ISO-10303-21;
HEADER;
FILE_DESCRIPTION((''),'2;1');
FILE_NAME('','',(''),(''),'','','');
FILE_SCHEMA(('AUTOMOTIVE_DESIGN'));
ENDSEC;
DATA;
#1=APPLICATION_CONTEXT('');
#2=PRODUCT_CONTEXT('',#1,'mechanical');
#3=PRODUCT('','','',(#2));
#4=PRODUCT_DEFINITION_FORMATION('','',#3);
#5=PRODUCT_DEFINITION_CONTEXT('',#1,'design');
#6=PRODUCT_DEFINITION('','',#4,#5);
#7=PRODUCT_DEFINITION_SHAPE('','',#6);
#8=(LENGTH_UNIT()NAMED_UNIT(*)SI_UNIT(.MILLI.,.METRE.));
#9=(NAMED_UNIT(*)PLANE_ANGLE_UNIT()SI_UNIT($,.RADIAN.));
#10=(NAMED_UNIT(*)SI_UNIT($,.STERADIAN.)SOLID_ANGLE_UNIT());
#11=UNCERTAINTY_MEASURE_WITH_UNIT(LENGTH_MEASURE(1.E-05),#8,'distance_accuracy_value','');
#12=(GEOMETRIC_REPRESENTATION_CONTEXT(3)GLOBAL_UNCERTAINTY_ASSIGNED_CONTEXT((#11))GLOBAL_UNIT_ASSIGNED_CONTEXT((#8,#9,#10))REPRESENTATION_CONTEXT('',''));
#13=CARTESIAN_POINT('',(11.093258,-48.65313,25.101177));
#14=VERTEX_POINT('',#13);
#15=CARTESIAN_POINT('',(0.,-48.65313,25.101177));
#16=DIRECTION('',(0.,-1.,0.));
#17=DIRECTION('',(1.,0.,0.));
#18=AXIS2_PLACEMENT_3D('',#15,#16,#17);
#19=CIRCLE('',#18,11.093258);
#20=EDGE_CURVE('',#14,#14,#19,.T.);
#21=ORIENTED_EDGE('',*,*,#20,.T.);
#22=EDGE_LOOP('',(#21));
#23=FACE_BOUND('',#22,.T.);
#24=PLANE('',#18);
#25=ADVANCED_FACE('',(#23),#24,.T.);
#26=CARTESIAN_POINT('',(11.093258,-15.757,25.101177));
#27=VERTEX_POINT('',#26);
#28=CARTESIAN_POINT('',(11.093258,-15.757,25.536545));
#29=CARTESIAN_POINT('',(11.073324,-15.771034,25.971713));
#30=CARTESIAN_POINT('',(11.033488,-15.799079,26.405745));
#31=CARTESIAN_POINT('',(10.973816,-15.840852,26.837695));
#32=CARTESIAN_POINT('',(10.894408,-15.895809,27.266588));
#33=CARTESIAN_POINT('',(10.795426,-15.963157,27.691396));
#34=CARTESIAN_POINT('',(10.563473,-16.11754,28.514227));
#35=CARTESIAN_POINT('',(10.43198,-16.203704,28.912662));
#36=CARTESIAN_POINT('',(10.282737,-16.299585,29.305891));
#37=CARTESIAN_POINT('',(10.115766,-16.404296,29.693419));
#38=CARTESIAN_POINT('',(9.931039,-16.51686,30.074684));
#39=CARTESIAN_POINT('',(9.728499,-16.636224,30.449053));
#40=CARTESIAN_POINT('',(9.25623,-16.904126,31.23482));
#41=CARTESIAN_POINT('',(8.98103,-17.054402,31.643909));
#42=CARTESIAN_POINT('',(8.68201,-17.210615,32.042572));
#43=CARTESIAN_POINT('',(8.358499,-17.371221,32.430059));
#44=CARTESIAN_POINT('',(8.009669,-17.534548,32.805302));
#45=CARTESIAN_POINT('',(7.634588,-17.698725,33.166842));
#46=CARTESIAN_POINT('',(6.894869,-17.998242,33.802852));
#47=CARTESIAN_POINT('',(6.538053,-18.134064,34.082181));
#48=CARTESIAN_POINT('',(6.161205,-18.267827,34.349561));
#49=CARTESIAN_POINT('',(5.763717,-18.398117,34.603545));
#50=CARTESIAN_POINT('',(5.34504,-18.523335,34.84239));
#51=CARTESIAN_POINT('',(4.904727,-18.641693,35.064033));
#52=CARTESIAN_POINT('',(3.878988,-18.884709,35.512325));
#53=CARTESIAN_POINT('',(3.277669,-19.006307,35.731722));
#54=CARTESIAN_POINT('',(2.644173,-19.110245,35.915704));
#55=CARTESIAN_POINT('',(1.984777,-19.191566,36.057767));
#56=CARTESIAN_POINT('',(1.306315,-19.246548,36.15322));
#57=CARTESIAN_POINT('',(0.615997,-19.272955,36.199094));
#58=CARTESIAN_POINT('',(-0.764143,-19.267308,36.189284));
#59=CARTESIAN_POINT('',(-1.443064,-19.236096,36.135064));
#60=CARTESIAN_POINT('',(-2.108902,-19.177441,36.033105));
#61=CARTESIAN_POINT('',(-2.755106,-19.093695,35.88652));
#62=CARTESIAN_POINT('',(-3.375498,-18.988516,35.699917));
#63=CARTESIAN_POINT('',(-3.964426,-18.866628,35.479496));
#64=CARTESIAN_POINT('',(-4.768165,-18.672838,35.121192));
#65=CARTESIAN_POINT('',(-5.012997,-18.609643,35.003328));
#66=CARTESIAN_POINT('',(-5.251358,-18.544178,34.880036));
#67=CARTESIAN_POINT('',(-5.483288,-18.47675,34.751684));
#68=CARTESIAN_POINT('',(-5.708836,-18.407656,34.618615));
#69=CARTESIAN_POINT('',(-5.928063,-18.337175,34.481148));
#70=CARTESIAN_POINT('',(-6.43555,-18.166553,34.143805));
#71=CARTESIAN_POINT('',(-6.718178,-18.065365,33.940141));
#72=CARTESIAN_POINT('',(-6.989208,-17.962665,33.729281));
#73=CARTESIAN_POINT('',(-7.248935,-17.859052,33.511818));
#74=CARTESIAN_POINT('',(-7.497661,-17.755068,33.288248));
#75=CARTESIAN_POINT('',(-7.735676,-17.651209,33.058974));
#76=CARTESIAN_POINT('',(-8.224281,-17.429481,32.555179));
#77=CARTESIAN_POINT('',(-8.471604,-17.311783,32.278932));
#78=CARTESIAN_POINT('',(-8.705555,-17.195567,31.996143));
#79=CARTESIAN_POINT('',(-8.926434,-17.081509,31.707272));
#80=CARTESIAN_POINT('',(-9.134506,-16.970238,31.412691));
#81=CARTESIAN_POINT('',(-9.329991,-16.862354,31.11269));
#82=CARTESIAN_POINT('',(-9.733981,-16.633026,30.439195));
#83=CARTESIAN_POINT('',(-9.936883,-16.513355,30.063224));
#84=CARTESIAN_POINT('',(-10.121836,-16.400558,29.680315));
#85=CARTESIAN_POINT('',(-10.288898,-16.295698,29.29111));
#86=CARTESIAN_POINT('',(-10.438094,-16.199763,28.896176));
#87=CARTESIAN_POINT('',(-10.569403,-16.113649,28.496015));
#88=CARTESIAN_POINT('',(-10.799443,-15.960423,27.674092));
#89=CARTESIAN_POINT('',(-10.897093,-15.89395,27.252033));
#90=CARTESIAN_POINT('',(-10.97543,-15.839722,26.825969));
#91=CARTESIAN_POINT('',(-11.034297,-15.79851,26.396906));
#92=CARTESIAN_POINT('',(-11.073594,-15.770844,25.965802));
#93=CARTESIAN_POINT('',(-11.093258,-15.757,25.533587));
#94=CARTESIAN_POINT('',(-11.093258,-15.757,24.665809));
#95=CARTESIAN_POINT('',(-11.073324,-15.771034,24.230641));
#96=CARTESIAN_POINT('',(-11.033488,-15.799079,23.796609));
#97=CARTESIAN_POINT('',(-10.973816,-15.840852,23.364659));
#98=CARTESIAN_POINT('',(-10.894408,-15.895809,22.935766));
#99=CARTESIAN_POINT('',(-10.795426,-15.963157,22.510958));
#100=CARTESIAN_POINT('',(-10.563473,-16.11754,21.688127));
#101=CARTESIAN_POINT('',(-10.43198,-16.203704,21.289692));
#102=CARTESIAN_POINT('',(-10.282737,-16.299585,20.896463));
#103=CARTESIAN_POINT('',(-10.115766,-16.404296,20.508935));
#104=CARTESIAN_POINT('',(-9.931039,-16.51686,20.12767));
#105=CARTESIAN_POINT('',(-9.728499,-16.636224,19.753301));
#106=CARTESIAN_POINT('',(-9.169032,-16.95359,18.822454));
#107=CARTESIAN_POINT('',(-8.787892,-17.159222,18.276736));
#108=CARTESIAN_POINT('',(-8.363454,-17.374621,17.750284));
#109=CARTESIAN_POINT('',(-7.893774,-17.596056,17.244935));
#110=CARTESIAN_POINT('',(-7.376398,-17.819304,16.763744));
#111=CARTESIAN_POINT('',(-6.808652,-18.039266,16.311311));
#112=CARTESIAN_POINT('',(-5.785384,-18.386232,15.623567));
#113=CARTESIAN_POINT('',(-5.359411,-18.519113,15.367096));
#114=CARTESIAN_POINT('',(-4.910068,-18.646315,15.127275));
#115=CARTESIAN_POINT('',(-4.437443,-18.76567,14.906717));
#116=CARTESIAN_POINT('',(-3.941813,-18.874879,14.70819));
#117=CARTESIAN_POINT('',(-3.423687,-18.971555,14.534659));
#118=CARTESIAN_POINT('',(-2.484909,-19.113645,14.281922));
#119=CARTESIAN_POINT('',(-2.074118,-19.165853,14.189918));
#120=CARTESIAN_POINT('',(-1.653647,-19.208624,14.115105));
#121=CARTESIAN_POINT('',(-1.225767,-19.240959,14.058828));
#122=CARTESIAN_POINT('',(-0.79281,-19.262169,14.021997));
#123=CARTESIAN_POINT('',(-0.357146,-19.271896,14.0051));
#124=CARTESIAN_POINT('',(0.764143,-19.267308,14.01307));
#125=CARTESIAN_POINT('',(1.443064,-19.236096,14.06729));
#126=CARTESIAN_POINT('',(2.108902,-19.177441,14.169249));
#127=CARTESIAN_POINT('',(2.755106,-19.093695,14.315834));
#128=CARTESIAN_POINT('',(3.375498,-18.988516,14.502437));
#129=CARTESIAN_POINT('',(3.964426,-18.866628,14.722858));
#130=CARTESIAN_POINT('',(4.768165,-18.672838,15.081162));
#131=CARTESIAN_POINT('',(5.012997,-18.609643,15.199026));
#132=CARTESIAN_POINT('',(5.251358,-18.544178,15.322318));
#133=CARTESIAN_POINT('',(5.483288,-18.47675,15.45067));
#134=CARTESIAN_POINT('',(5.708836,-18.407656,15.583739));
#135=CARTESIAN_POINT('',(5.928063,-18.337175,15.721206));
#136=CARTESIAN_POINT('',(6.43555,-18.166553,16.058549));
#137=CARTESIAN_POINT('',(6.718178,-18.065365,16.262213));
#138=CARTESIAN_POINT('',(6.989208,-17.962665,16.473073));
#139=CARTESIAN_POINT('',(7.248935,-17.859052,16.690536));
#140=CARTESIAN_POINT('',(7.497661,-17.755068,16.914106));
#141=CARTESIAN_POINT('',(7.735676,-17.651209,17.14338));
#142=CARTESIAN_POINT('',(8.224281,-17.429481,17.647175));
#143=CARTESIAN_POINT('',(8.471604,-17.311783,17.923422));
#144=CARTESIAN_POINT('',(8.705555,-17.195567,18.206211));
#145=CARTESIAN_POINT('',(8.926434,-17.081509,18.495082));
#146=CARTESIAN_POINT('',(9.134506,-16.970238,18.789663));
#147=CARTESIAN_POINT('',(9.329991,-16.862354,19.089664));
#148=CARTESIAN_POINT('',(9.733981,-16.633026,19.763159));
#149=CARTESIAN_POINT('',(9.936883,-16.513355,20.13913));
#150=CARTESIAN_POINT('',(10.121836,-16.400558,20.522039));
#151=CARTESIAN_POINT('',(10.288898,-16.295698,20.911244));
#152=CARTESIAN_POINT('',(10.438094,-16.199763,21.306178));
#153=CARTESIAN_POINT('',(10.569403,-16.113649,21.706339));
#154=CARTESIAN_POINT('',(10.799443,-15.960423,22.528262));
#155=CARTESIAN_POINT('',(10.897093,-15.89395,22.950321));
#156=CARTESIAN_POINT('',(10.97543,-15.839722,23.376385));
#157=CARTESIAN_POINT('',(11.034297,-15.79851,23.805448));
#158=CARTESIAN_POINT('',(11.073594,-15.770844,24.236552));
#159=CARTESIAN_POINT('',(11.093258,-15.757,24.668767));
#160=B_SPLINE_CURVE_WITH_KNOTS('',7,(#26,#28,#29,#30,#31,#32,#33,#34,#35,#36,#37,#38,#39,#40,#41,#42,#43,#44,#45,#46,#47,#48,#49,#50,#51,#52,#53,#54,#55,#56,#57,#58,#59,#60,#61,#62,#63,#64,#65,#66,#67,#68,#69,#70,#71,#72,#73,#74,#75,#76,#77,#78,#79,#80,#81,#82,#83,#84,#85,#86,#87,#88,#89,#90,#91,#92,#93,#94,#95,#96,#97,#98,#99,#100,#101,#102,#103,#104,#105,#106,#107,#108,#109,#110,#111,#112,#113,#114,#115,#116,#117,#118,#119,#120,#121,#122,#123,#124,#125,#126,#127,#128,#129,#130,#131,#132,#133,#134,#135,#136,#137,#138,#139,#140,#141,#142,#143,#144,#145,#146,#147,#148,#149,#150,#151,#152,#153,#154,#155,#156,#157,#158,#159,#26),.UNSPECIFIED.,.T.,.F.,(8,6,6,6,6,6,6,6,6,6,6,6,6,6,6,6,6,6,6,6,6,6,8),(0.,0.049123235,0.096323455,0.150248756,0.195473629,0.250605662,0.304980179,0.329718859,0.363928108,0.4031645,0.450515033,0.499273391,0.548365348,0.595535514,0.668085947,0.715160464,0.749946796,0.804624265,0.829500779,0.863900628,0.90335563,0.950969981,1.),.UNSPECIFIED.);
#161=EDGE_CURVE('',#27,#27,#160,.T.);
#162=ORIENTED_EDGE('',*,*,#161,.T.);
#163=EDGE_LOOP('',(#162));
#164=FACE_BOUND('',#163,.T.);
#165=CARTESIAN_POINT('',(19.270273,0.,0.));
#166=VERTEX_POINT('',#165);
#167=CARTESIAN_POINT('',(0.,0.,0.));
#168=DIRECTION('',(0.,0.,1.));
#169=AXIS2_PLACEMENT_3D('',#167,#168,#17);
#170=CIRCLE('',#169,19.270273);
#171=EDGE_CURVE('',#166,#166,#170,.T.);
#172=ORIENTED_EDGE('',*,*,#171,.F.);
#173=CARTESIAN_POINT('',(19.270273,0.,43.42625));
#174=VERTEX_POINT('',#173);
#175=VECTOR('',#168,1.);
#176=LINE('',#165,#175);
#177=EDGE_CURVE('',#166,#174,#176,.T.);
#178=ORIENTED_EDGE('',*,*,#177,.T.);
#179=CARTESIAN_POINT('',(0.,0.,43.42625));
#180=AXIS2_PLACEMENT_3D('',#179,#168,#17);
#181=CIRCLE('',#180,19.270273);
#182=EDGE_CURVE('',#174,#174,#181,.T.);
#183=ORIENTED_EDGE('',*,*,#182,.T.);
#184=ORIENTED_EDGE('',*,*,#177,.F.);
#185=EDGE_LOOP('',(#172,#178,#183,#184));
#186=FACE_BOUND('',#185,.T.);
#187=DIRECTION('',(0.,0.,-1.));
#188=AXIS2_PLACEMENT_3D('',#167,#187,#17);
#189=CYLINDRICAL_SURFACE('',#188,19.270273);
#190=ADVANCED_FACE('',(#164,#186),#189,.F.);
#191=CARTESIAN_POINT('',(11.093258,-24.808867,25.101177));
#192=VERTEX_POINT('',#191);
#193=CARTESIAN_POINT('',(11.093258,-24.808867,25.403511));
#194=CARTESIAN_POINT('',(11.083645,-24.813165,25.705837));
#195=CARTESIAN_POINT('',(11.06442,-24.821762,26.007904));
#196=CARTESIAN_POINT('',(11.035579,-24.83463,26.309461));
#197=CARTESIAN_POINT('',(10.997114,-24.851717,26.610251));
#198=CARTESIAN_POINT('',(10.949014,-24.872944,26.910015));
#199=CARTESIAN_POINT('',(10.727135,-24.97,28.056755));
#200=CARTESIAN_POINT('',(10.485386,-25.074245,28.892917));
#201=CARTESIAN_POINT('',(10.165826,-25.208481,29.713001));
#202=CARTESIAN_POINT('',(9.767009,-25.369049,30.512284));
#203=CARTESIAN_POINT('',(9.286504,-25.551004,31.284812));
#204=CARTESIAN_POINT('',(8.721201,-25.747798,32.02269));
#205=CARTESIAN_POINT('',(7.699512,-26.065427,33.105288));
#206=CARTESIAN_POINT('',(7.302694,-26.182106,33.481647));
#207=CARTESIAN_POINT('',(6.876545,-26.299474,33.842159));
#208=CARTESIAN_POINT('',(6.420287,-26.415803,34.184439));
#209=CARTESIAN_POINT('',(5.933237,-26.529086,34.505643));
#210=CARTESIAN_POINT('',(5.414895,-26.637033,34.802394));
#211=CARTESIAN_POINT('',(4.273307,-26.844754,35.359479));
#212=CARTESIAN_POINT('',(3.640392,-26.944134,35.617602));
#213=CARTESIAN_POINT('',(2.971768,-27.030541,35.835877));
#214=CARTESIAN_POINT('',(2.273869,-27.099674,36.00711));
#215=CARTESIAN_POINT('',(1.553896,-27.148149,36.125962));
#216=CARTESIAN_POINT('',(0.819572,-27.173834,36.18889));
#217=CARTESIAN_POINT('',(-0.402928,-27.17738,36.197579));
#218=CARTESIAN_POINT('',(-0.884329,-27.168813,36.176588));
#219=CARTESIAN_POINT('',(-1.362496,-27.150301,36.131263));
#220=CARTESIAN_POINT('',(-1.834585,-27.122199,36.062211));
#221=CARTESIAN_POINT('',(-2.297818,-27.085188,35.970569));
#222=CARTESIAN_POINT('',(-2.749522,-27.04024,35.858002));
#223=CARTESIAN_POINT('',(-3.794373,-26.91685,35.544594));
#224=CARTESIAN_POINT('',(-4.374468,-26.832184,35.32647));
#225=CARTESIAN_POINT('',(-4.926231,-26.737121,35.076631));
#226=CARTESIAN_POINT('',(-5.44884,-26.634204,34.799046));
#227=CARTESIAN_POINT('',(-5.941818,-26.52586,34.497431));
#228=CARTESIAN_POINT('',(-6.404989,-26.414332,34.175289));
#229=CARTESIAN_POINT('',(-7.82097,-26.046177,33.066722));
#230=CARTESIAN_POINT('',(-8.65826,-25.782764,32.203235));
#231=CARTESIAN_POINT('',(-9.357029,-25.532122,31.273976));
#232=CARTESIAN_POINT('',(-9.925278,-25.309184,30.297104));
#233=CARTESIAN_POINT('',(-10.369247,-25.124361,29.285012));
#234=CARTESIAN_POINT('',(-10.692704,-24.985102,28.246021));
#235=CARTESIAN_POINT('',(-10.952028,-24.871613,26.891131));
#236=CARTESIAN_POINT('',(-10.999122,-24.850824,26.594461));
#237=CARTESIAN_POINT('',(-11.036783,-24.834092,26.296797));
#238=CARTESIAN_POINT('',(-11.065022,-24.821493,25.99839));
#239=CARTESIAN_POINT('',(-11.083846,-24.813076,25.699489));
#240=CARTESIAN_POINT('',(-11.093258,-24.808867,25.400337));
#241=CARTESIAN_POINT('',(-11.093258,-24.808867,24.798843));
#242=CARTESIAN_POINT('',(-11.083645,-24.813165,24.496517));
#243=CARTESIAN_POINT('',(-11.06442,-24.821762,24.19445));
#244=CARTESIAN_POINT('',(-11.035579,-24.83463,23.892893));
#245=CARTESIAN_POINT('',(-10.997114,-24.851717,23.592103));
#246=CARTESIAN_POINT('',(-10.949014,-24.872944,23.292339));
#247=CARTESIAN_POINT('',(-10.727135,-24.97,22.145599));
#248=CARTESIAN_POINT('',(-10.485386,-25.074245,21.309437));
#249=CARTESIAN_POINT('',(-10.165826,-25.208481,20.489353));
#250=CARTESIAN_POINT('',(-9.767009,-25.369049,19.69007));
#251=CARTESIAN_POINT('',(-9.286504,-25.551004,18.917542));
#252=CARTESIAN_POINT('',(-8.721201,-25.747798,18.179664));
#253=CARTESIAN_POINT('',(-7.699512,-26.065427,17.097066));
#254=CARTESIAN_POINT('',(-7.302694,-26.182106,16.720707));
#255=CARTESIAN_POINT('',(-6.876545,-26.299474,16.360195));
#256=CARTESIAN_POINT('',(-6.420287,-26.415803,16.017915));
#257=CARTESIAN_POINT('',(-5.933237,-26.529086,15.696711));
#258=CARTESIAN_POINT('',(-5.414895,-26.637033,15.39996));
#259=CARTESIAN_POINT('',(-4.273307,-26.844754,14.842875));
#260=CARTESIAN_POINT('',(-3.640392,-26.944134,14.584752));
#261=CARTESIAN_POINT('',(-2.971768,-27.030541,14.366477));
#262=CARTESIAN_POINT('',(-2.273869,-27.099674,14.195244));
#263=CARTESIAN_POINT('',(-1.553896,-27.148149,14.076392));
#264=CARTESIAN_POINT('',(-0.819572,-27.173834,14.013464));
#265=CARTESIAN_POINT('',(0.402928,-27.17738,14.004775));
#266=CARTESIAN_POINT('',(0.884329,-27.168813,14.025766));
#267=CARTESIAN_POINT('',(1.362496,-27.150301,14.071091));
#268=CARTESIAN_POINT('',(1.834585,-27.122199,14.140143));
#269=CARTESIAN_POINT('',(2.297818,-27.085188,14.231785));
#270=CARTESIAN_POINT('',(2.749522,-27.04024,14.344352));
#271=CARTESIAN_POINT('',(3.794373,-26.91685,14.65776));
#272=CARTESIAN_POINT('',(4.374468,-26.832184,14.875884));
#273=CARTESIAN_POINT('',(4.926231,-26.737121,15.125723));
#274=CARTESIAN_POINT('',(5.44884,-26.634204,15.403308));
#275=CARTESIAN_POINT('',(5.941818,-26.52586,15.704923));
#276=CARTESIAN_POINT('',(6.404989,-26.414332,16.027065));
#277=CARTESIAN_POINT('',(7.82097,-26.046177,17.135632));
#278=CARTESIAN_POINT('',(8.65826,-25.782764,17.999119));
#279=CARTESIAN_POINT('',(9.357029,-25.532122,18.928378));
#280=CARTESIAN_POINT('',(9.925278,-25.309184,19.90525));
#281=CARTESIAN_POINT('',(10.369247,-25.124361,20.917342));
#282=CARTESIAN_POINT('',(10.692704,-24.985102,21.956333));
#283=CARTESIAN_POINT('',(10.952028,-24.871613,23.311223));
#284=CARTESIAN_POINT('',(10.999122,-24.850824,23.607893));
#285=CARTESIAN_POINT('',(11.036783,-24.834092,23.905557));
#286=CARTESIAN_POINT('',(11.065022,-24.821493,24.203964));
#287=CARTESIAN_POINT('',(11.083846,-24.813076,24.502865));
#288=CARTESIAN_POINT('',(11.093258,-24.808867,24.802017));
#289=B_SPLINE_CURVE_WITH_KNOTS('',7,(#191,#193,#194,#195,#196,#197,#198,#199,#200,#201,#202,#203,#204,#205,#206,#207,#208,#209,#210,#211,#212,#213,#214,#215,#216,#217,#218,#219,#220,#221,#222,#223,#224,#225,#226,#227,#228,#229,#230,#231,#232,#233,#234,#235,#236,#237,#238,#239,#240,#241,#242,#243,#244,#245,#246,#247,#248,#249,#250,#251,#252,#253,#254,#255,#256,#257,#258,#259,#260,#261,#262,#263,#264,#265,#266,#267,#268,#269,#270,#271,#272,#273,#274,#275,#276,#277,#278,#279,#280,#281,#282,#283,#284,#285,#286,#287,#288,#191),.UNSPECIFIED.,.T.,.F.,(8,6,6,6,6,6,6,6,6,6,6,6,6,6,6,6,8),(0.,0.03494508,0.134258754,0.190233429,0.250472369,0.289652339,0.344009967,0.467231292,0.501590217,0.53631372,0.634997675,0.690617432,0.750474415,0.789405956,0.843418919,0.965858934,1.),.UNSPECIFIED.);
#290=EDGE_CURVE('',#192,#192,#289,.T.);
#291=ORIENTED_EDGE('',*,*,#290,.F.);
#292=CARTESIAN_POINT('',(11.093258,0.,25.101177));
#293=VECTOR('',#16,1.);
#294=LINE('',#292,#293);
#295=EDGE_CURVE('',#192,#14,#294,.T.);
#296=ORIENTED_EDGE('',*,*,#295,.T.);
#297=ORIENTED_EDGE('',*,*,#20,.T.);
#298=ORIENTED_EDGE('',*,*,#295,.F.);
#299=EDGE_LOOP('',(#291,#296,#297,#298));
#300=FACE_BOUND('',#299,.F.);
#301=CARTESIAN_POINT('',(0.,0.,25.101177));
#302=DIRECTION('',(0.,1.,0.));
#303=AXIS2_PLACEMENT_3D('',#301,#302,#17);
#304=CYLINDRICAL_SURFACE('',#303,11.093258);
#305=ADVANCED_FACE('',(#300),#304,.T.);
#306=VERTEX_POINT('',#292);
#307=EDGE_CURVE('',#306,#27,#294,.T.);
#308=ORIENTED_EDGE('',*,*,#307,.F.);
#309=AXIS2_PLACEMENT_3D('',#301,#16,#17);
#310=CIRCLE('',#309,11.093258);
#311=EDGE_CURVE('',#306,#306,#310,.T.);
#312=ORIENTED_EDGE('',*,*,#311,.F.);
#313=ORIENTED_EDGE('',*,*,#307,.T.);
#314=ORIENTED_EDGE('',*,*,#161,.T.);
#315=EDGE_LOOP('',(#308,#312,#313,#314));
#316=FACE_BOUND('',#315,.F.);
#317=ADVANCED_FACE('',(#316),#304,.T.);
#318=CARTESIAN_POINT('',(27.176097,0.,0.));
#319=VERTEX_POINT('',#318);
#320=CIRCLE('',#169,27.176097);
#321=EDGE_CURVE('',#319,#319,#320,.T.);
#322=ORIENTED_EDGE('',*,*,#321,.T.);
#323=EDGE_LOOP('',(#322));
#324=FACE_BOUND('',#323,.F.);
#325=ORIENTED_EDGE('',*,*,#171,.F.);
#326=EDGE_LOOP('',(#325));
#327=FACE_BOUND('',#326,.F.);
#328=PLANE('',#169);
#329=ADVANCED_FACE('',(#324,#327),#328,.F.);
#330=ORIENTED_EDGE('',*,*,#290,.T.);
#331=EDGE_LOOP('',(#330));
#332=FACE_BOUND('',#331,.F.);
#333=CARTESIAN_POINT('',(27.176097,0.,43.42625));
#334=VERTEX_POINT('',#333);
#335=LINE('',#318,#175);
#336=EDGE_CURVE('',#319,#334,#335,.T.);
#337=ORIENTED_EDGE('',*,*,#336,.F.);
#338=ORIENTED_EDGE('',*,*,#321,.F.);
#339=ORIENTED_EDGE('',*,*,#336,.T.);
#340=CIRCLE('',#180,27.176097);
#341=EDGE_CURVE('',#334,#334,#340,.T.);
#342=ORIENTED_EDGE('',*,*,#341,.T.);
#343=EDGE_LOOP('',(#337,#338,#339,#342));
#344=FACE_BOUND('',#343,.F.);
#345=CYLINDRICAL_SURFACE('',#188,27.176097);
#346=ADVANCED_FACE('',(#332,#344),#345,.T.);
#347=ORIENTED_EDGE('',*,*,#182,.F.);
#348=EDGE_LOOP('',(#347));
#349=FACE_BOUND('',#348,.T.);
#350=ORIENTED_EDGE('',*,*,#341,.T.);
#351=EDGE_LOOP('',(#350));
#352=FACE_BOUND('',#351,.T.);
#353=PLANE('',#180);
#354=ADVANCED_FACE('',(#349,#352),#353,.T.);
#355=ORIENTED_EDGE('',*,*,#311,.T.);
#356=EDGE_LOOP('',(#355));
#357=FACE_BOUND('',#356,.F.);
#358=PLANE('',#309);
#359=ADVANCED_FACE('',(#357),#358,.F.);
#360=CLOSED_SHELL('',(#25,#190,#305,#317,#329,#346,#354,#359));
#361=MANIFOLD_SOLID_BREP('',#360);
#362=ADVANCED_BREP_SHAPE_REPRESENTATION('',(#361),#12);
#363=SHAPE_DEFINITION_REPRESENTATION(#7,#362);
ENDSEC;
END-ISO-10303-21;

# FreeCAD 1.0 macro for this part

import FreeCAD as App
import Part
import Sketcher

doc = App.newDocument("Part")
body = doc.addObject("PartDesign::Body", "Body")

# Sketch on XY plane
sketch1 = body.newObject("Sketcher::SketchObject", "Sketch")
sketch1.AttachmentSupport = (doc.getObject("XY_Plane"), [""])
sketch1.MapMode = "FlatFace"
sketch1.addGeometry(Part.Circle(App.Vector(0, 0, 0), App.Vector(0, 0, 1), 27.176097), False)
sketch1.addGeometry(Part.Circle(App.Vector(0, 0, 0), App.Vector(0, 0, 1), 19.270273), False)
sketch1.addConstraint(Sketcher.Constraint("Coincident", 0, 3, -1, 1))
sketch1.addConstraint(Sketcher.Constraint("Coincident", 1, 3, -1, 1))
sketch1.addConstraint(Sketcher.Constraint("Diameter", 0, 54.352194))
sketch1.addConstraint(Sketcher.Constraint("Diameter", 1, 38.540546))
pad1 = body.newObject("PartDesign::Pad", "Pad")
pad1.Profile = sketch1
pad1.Length = 43.42625

# Sketch on XZ plane
sketch2 = body.newObject("Sketcher::SketchObject", "Sketch001")
sketch2.AttachmentSupport = (doc.getObject("XZ_Plane"), [""])
sketch2.MapMode = "FlatFace"
sketch2.addGeometry(Part.Circle(App.Vector(0, 25.101177, 0), App.Vector(0, 0, 1), 11.093258), False)
sketch2.addConstraint(Sketcher.Constraint("PointOnObject", 0, 3, -2))
sketch2.addConstraint(Sketcher.Constraint("Diameter", 0, 22.186516))
sketch2.addConstraint(Sketcher.Constraint("DistanceY", -1, 1, 0, 3, 25.101177))
pad2 = body.newObject("PartDesign::Pad", "Pad001")
pad2.Profile = sketch2
pad2.Length = 48.65313

doc.recompute()
